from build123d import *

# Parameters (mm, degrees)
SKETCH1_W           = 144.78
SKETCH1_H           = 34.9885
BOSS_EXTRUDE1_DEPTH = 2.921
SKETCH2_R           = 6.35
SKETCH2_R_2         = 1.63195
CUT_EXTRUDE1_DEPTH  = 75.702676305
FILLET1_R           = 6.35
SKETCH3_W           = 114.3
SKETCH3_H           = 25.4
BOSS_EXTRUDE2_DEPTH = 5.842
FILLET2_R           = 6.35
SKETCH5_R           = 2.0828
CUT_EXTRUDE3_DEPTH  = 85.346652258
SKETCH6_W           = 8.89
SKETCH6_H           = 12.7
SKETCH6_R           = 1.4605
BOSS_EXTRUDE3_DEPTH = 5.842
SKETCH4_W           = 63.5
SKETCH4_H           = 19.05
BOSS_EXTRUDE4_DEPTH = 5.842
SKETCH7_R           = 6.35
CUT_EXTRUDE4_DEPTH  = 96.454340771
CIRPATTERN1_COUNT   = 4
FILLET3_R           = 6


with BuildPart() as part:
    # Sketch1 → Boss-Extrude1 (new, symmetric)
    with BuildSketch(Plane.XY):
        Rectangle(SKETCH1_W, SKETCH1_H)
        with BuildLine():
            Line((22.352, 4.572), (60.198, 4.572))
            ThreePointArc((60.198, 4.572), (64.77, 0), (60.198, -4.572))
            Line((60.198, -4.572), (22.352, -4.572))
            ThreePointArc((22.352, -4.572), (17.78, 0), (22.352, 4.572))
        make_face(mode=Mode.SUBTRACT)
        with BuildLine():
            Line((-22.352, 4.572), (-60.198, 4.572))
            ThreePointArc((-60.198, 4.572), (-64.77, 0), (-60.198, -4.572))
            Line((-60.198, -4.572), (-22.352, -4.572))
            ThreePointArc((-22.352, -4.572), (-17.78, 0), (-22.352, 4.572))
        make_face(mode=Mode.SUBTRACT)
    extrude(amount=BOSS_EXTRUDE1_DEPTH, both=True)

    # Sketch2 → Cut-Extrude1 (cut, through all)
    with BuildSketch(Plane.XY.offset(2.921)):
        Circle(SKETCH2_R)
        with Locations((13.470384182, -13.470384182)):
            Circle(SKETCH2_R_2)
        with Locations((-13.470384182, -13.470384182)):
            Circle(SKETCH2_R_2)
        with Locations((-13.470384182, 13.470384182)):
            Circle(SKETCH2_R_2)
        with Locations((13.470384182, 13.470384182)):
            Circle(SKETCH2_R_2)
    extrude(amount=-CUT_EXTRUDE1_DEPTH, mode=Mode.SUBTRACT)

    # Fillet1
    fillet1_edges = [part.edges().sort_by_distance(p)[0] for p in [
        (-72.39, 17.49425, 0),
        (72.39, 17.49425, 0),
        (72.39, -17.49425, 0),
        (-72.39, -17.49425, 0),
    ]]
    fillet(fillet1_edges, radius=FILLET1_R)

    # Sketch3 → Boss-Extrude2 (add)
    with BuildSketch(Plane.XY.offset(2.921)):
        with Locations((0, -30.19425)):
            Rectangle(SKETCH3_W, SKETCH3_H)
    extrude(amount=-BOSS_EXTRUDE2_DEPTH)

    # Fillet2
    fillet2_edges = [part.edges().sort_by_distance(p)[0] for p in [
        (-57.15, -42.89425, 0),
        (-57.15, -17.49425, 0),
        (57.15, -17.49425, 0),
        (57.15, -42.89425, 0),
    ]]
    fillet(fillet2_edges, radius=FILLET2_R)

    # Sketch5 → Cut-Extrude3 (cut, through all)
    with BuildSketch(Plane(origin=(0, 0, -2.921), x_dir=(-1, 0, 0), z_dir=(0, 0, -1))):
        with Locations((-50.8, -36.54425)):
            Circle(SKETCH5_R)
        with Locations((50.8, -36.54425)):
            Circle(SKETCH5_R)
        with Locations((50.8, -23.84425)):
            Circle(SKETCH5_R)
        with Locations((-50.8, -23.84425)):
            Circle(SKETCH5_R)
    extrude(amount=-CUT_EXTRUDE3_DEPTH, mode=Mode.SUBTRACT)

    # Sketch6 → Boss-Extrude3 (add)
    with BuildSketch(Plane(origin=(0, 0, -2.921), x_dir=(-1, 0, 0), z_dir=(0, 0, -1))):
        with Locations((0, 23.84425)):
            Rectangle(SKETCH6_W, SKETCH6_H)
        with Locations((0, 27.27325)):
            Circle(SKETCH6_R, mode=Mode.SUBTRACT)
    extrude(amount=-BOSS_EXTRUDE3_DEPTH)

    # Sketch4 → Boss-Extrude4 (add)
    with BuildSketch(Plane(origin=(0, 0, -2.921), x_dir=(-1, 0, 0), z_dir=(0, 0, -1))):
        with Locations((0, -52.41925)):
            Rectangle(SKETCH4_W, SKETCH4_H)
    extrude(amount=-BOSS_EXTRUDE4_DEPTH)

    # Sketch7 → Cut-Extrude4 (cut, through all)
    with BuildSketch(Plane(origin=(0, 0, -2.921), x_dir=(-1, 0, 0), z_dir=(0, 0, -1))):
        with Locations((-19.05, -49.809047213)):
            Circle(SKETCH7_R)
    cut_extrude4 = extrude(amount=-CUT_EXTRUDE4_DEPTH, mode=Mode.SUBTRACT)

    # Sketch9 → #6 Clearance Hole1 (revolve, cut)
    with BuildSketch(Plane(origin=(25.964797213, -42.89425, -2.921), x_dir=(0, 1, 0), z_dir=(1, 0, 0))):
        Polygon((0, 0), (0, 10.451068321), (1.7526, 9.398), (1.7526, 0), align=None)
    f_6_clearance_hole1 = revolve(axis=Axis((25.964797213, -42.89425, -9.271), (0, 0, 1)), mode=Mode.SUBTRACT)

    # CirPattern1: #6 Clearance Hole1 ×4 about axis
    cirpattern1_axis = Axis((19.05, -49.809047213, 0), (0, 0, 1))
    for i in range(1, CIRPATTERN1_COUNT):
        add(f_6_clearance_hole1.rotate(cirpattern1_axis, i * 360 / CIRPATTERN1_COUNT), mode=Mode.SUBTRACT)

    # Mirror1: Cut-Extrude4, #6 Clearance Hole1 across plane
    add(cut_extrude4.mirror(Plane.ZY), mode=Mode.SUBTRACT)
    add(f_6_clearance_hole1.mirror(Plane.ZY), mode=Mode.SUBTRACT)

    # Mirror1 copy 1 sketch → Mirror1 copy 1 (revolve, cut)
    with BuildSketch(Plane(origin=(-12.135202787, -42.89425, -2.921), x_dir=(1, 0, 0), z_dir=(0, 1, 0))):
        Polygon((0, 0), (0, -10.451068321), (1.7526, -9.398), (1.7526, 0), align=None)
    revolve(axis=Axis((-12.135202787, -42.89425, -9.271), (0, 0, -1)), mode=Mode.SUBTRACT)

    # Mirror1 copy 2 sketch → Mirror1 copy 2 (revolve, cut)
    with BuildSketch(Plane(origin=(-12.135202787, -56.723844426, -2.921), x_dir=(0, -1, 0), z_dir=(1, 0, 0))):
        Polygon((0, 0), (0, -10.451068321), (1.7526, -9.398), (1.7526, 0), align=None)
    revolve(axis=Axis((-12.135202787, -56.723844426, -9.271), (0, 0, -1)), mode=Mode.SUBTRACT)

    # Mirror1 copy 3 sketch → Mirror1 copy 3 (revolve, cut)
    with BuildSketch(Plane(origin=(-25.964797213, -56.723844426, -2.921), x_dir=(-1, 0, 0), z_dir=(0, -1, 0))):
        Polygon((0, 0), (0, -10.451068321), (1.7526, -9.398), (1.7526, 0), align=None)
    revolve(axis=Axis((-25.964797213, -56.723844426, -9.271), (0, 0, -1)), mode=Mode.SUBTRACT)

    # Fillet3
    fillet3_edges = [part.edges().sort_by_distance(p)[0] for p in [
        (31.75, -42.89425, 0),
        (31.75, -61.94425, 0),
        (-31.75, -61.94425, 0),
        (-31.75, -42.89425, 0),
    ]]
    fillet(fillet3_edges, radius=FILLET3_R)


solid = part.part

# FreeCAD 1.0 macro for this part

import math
import FreeCAD as App
import Part
import Sketcher
Q = App.Units.Quantity


def edges_at(feature, points):
    """Names of the edges that pass closest to the given points."""
    edges = feature.Shape.Edges
    near = lambda p: min(range(len(edges)), key=lambda i: edges[i].distToShape(Part.Vertex(*p))[0])
    return sorted({f"Edge{near(p) + 1}" for p in points})


def add_polygon(sketch, points):
    """Adds a closed chain of lines whose ends are joined by coincident constraints."""
    first, n = sketch.GeometryCount, len(points)
    for a, b in zip(points, points[1:] + points[:1]):
        sketch.addGeometry(Part.LineSegment(App.Vector(*a, 0), App.Vector(*b, 0)), False)
    for i in range(n):
        sketch.addConstraint(Sketcher.Constraint("Coincident", first + i, 2, first + (i + 1) % n, 1))

doc = App.newDocument("Part")
body = doc.addObject("PartDesign::Body", "Body")

sketch1 = doc.addObject("Sketcher::SketchObject", "Sketch")
body.addObject(sketch1)
sketch1.AttachmentSupport = (doc.XY_Plane, [""])
sketch1.MapMode = "FlatFace"
add_polygon(sketch1, [(-72.4, 17.5), (-72.4, -17.5), (72.4, -17.5), (72.4, 17.5)])
sketch1.addGeometry(Part.LineSegment(App.Vector(-60.2, 4.6, 0), App.Vector(-22.4, 4.6, 0)), False)
sketch1.addGeometry(Part.ArcOfCircle(Part.Circle(App.Vector(-22.4, 0, 0), App.Vector(0, 0, 1), 4.6), math.radians(-90), math.radians(90)), False)
sketch1.addGeometry(Part.LineSegment(App.Vector(-22.4, -4.6, 0), App.Vector(-60.2, -4.6, 0)), False)
sketch1.addGeometry(Part.ArcOfCircle(Part.Circle(App.Vector(-60.2, 0, 0), App.Vector(0, 0, 1), 4.6), math.radians(90), math.radians(270)), False)
sketch1.addGeometry(Part.ArcOfCircle(Part.Circle(App.Vector(22.4, 0, 0), App.Vector(0, 0, 1), 4.6), math.radians(90), math.radians(270)), False)
sketch1.addGeometry(Part.LineSegment(App.Vector(22.4, 4.6, 0), App.Vector(60.2, 4.6, 0)), False)
sketch1.addGeometry(Part.ArcOfCircle(Part.Circle(App.Vector(60.2, 0, 0), App.Vector(0, 0, 1), 4.6), math.radians(-90), math.radians(90)), False)
sketch1.addGeometry(Part.LineSegment(App.Vector(60.2, -4.6, 0), App.Vector(22.4, -4.6, 0)), False)
sketch1.addConstraint([
    Sketcher.Constraint("Tangent", 4, 2, 5, 2),
    Sketcher.Constraint("Tangent", 5, 1, 6, 1),
    Sketcher.Constraint("Tangent", 6, 2, 7, 2),
    Sketcher.Constraint("Tangent", 7, 1, 4, 1),
    Sketcher.Constraint("Tangent", 8, 1, 9, 1),
    Sketcher.Constraint("Tangent", 9, 2, 10, 2),
    Sketcher.Constraint("Tangent", 10, 1, 11, 1),
    Sketcher.Constraint("Tangent", 11, 2, 8, 2),
    Sketcher.Constraint("Vertical", 0),
    Sketcher.Constraint("Horizontal", 1),
    Sketcher.Constraint("Vertical", 2),
    Sketcher.Constraint("Horizontal", 3),
    Sketcher.Constraint("Horizontal", 4),
    Sketcher.Constraint("Horizontal", 6),
    Sketcher.Constraint("Horizontal", 9),
    Sketcher.Constraint("Horizontal", 11),
    Sketcher.Constraint("Equal", 7, 8),
    Sketcher.Constraint("Symmetric", 5, 3, 8, 3, -1, 1),
    Sketcher.Constraint("Symmetric", 0, 2, 2, 2, -1, 1),
    Sketcher.Constraint("Symmetric", 7, 3, 10, 3, -2),
    Sketcher.Constraint("Radius", 5, Q("0.18 in")),
    Sketcher.Constraint("DistanceX", 1, 1, 1, 2, Q("5.7 in")),
    Sketcher.Constraint("DistanceX", 4, 1, 4, 2, Q("1.49 in")),
    Sketcher.Constraint("DistanceX", 5, 3, -1, 1, Q("0.88 in")),
    Sketcher.Constraint("DistanceY", 0, 2, 0, 1, Q("1.3775 in")),
])
pad1 = doc.addObject("PartDesign::Pad", "Pad")
body.addObject(pad1)
pad1.Profile = sketch1
pad1.Length = Q("0.23 in")
pad1.Midplane = True

sketch2 = doc.addObject("Sketcher::SketchObject", "Sketch001")
body.addObject(sketch2)
sketch2.AttachmentSupport = (doc.XY_Plane, [""])
sketch2.MapMode = "FlatFace"
sketch2.AttachmentOffset = App.Placement(App.Vector(0, 0, 0.115 * 25.4), App.Rotation())
sketch2.addGeometry([
    Part.Circle(App.Vector(0, 0, 0), App.Vector(0, 0, 1), 6.3),
    Part.Circle(App.Vector(13.5, -13.5, 0), App.Vector(0, 0, 1), 1.6),
    Part.Circle(App.Vector(-13.5, -13.5, 0), App.Vector(0, 0, 1), 1.6),
    Part.Circle(App.Vector(-13.5, 13.5, 0), App.Vector(0, 0, 1), 1.6),
    Part.Circle(App.Vector(13.5, 13.5, 0), App.Vector(0, 0, 1), 1.6),
], False)
sketch2.addConstraint([
    Sketcher.Constraint("Coincident", 0, 3, -1, 1),
    Sketcher.Constraint("Equal", 1, 2),
    Sketcher.Constraint("Equal", 2, 3),
    Sketcher.Constraint("Equal", 3, 4),
    Sketcher.Constraint("Symmetric", 1, 3, 3, 3, -1, 1),
    Sketcher.Constraint("Symmetric", 2, 3, 4, 3, -1, 1),
    Sketcher.Constraint("Symmetric", 1, 3, 2, 3, -2),
    Sketcher.Constraint("Diameter", 0, Q("0.5 in")),
    Sketcher.Constraint("Diameter", 1, Q("0.1285 in")),
    Sketcher.Constraint("DistanceX", 2, 3, 1, 3, Q("26.940768 mm")),
    Sketcher.Constraint("DistanceY", 2, 3, 3, 3, Q("26.940768 mm")),
])
pocket1 = doc.addObject("PartDesign::Pocket", "Pocket")
body.addObject(pocket1)
pocket1.Profile = sketch2
pocket1.Type = "ThroughAll"
doc.recompute()

fillet = doc.addObject("PartDesign::Fillet", "Fillet")
body.addObject(fillet)
fillet.Base = (pocket1, edges_at(pocket1, [
    (-72.39, 17.494, 0),
    (72.39, 17.494, 0),
    (72.39, -17.494, 0),
    (-72.39, -17.494, 0),
]))
fillet.Radius = Q("0.25 in")

sketch3 = doc.addObject("Sketcher::SketchObject", "Sketch002")
body.addObject(sketch3)
sketch3.AttachmentSupport = (doc.XY_Plane, [""])
sketch3.MapMode = "FlatFace"
sketch3.AttachmentOffset = App.Placement(App.Vector(0, 0, 0.115 * 25.4), App.Rotation())
add_polygon(sketch3, [(-57, -17), (-57, -43), (57, -43), (57, -17)])
sketch3.addConstraint([
    Sketcher.Constraint("Vertical", 0),
    Sketcher.Constraint("Horizontal", 1),
    Sketcher.Constraint("Vertical", 2),
    Sketcher.Constraint("Horizontal", 3),
    Sketcher.Constraint("DistanceY", 0, 2, 0, 1, Q("1 in")),
    Sketcher.Constraint("DistanceX", 1, 1, 1, 2, Q("4.5 in")),
    Sketcher.Constraint("DistanceX", 0, 2, -1, 1, Q("2.25 in")),
    Sketcher.Constraint("DistanceY", 0, 2, -1, 1, Q("42.89425 mm")),
])
pad2 = doc.addObject("PartDesign::Pad", "Pad001")
body.addObject(pad2)
pad2.Profile = sketch3
pad2.Length = Q("0.23 in")
pad2.Reversed = True
doc.recompute()

fillet2 = doc.addObject("PartDesign::Fillet", "Fillet001")
body.addObject(fillet2)
fillet2.Base = (pad2, edges_at(pad2, [
    (-57.15, -42.894, 0),
    (-57.15, -17.494, 0),
    (57.15, -17.494, 0),
    (57.15, -42.894, 0),
]))
fillet2.Radius = Q("0.25 in")

sketch4 = doc.addObject("Sketcher::SketchObject", "Sketch003")
body.addObject(sketch4)
sketch4.AttachmentSupport = (doc.XY_Plane, [""])
sketch4.MapMode = "FlatFace"
sketch4.AttachmentOffset = App.Placement(App.Vector(0, 0, -0.115 * 25.4), App.Rotation())
sketch4.addGeometry([
    Part.Circle(App.Vector(50.8, -36.5, 0), App.Vector(0, 0, 1), 2.1),
    Part.Circle(App.Vector(-50.8, -36.5, 0), App.Vector(0, 0, 1), 2.1),
    Part.Circle(App.Vector(-50.8, -23.8, 0), App.Vector(0, 0, 1), 2.1),
    Part.Circle(App.Vector(50.8, -23.8, 0), App.Vector(0, 0, 1), 2.1),
], False)
sketch4.addConstraint([
    Sketcher.Constraint("Equal", 0, 1),
    Sketcher.Constraint("Equal", 1, 2),
    Sketcher.Constraint("Equal", 2, 3),
    Sketcher.Constraint("Symmetric", 0, 3, 1, 3, -2),
    Sketcher.Constraint("Symmetric", 2, 3, 3, 3, -2),
    Sketcher.Constraint("Vertical", 1, 3, 2, 3),
    Sketcher.Constraint("Diameter", 0, Q("0.164 in")),
    Sketcher.Constraint("DistanceX", -1, 1, 0, 3, Q("2 in")),
    Sketcher.Constraint("DistanceY", 1, 3, 2, 3, Q("0.5 in")),
    Sketcher.Constraint("DistanceY", 0, 3, -1, 1, Q("36.54425 mm")),
])
pocket2 = doc.addObject("PartDesign::Pocket", "Pocket001")
body.addObject(pocket2)
pocket2.Profile = sketch4
pocket2.Type = "ThroughAll"
pocket2.Reversed = True

sketch5 = doc.addObject("Sketcher::SketchObject", "Sketch004")
body.addObject(sketch5)
sketch5.AttachmentSupport = (doc.XY_Plane, [""])
sketch5.MapMode = "FlatFace"
sketch5.AttachmentOffset = App.Placement(App.Vector(0, 0, -0.115 * 25.4), App.Rotation())
add_polygon(sketch5, [(4.4, 30.2), (4.4, 17.5), (-4.4, 17.5), (-4.4, 30.2)])
sketch5.addGeometry(Part.Circle(App.Vector(0, 27.3, 0), App.Vector(0, 0, 1), 1.5), False)
sketch5.addConstraint([
    Sketcher.Constraint("Vertical", 0),
    Sketcher.Constraint("Horizontal", 1),
    Sketcher.Constraint("Vertical", 2),
    Sketcher.Constraint("Horizontal", 3),
    Sketcher.Constraint("PointOnObject", 4, 3, -2),
    Sketcher.Constraint("Diameter", 4, Q("0.115 in")),
    Sketcher.Constraint("DistanceY", 0, 2, 0, 1, Q("0.5 in")),
    Sketcher.Constraint("DistanceX", 1, 2, 1, 1, Q("0.35 in")),
    Sketcher.Constraint("DistanceX", -1, 1, 0, 2, Q("0.175 in")),
    Sketcher.Constraint("DistanceY", 0, 2, 4, 3, Q("0.385 in")),
    Sketcher.Constraint("DistanceY", -1, 1, 4, 3, Q("27.27325 mm")),
])
pad3 = doc.addObject("PartDesign::Pad", "Pad002")
body.addObject(pad3)
pad3.Profile = sketch5
pad3.Length = Q("0.23 in")

sketch6 = doc.addObject("Sketcher::SketchObject", "Sketch005")
body.addObject(sketch6)
sketch6.AttachmentSupport = (doc.XY_Plane, [""])
sketch6.MapMode = "FlatFace"
sketch6.AttachmentOffset = App.Placement(App.Vector(0, 0, -0.115 * 25.4), App.Rotation())
add_polygon(sketch6, [(32, -43), (32, -62), (-32, -62), (-32, -43)])
sketch6.addConstraint([
    Sketcher.Constraint("Vertical", 0),
    Sketcher.Constraint("Horizontal", 1),
    Sketcher.Constraint("Vertical", 2),
    Sketcher.Constraint("Horizontal", 3),
    Sketcher.Constraint("DistanceX", 1, 2, 1, 1, Q("2.5 in")),
    Sketcher.Constraint("DistanceY", 0, 2, 0, 1, Q("0.75 in")),
    Sketcher.Constraint("DistanceX", -1, 1, 0, 2, Q("1.25 in")),
    Sketcher.Constraint("DistanceY", 0, 2, -1, 1, Q("61.94425 mm")),
])
pad4 = doc.addObject("PartDesign::Pad", "Pad003")
body.addObject(pad4)
pad4.Profile = sketch6
pad4.Length = Q("0.23 in")

sketch7 = doc.addObject("Sketcher::SketchObject", "Sketch006")
body.addObject(sketch7)
sketch7.AttachmentSupport = (doc.XY_Plane, [""])
sketch7.MapMode = "FlatFace"
sketch7.AttachmentOffset = App.Placement(App.Vector(0, 0, -0.115 * 25.4), App.Rotation())
sketch7.addGeometry(Part.Circle(App.Vector(19, -50, 0), App.Vector(0, 0, 1), 6), False)
sketch7.addConstraint([
    Sketcher.Constraint("Diameter", 0, Q("0.5 in")),
    Sketcher.Constraint("DistanceX", -1, 1, 0, 3, Q("0.75 in")),
    Sketcher.Constraint("DistanceY", 0, 3, -1, 1, Q("49.809047 mm")),
])
pocket3 = doc.addObject("PartDesign::Pocket", "Pocket002")
body.addObject(pocket3)
pocket3.Profile = sketch7
pocket3.Type = "ThroughAll"
pocket3.Reversed = True

sketch8 = doc.addObject("Sketcher::SketchObject", "Sketch007")
body.addObject(sketch8)
sketch8.AttachmentSupport = (doc.YZ_Plane, [""])
sketch8.MapMode = "FlatFace"
sketch8.AttachmentOffset = App.Placement(App.Vector(0, 0, 25.964797), App.Rotation())
add_polygon(sketch8, [(-42.9, 7.5), (-42.9, -2.9), (-41.1, -2.9), (-41.1, 6.5)])
sketch8.addGeometry(Part.LineSegment(App.Vector(-42.9, -2.9, 0), App.Vector(-42.9, 7.5, 0)), True)
sketch8.addConstraint([
    Sketcher.Constraint("Vertical", 0),
    Sketcher.Constraint("Horizontal", 1),
    Sketcher.Constraint("Vertical", 2),
    Sketcher.Constraint("Vertical", 4),
    Sketcher.Constraint("Coincident", 4, 1, 0, 2),
    Sketcher.Constraint("Equal", 0, 4),
    Sketcher.Constraint("Angle", 3, Q("149 deg")),
    Sketcher.Constraint("DistanceY", 2, 1, 2, 2, Q("0.37 in")),
    Sketcher.Constraint("DistanceX", 1, 1, 1, 2, Q("0.069 in")),
    Sketcher.Constraint("DistanceY", 0, 2, -1, 1, Q("0.115 in")),
    Sketcher.Constraint("DistanceX", 0, 2, -1, 1, Q("42.89425 mm")),
])
groove = doc.addObject("PartDesign::Groove", "Groove")
body.addObject(groove)
groove.Profile = sketch8
groove.ReferenceAxis = (sketch8, ["Axis0"])
groove.Angle = 360
doc.recompute()

datumline = doc.addObject("PartDesign::Line", "DatumLine")
body.addObject(datumline)
datumline.Placement = App.Placement(App.Vector(19.05, -49.809047, 0), App.Rotation(App.Vector(0, 0, 1), App.Vector(0, 0, 1)))
polarpattern = doc.addObject("PartDesign::PolarPattern", "PolarPattern")
body.addObject(polarpattern)
polarpattern.Originals = [groove]
polarpattern.Axis = (datumline, [""])
polarpattern.Angle = 360
polarpattern.Occurrences = 4
body.Tip = polarpattern
doc.recompute()

mirrored = doc.addObject("PartDesign::Mirrored", "Mirrored")
body.addObject(mirrored)
mirrored.Originals = [pocket3, groove]
mirrored.MirrorPlane = (doc.YZ_Plane, [""])
body.Tip = mirrored

sketch9 = doc.addObject("Sketcher::SketchObject", "Sketch008")
body.addObject(sketch9)
sketch9.AttachmentSupport = (doc.XZ_Plane, [""])
sketch9.MapMode = "FlatFace"
sketch9.AttachmentOffset = App.Placement(App.Vector(0, 0, 42.89425), App.Rotation())
add_polygon(sketch9, [(-12.1, -2.9), (-12.1, 7.5), (-10.4, 6.5), (-10.4, -2.9)])
sketch9.addGeometry(Part.LineSegment(App.Vector(-12.1, 7.5, 0), App.Vector(-12.1, -2.9, 0)), True)
sketch9.addConstraint([
    Sketcher.Constraint("Vertical", 0),
    Sketcher.Constraint("Vertical", 2),
    Sketcher.Constraint("Horizontal", 3),
    Sketcher.Constraint("Vertical", 4),
    Sketcher.Constraint("Coincident", 4, 1, 0, 2),
    Sketcher.Constraint("Horizontal", 2, 2, 4, 2),
    Sketcher.Constraint("Angle", 1, Q("-31 deg")),
    Sketcher.Constraint("DistanceY", 2, 2, 2, 1, Q("0.37 in")),
    Sketcher.Constraint("DistanceX", 3, 2, 3, 1, Q("0.069 in")),
    Sketcher.Constraint("DistanceY", -1, 1, 1, 2, Q("0.255 in")),
    Sketcher.Constraint("DistanceX", 0, 2, -1, 1, Q("12.135203 mm")),
])
groove2 = doc.addObject("PartDesign::Groove", "Groove001")
body.addObject(groove2)
groove2.Profile = sketch9
groove2.ReferenceAxis = (sketch9, ["Axis0"])
groove2.Angle = 360

sketch10 = doc.addObject("Sketcher::SketchObject", "Sketch009")
body.addObject(sketch10)
sketch10.AttachmentSupport = (doc.YZ_Plane, [""])
sketch10.MapMode = "FlatFace"
sketch10.AttachmentOffset = App.Placement(App.Vector(0, 0, -12.135203), App.Rotation())
add_polygon(sketch10, [(-56.7, -2.9), (-56.7, 7.5), (-58.5, 6.5), (-58.5, -2.9)])
sketch10.addGeometry(Part.LineSegment(App.Vector(-56.7, 7.5, 0), App.Vector(-56.7, -2.9, 0)), True)
sketch10.addConstraint([
    Sketcher.Constraint("Vertical", 0),
    Sketcher.Constraint("Vertical", 2),
    Sketcher.Constraint("Horizontal", 3),
    Sketcher.Constraint("Vertical", 4),
    Sketcher.Constraint("Coincident", 4, 1, 0, 2),
    Sketcher.Constraint("Horizontal", 2, 2, 4, 2),
    Sketcher.Constraint("Angle", 1, Q("-149 deg")),
    Sketcher.Constraint("DistanceY", 2, 2, 2, 1, Q("0.37 in")),
    Sketcher.Constraint("DistanceX", 3, 1, 3, 2, Q("0.069 in")),
    Sketcher.Constraint("DistanceY", -1, 1, 1, 2, Q("0.255 in")),
    Sketcher.Constraint("DistanceX", 0, 2, -1, 1, Q("56.723844 mm")),
])
groove3 = doc.addObject("PartDesign::Groove", "Groove002")
body.addObject(groove3)
groove3.Profile = sketch10
groove3.ReferenceAxis = (sketch10, ["Axis0"])
groove3.Angle = 360

sketch11 = doc.addObject("Sketcher::SketchObject", "Sketch010")
body.addObject(sketch11)
sketch11.AttachmentSupport = (doc.XZ_Plane, [""])
sketch11.MapMode = "FlatFace"
sketch11.AttachmentOffset = App.Placement(App.Vector(0, 0, 56.723844), App.Rotation())
add_polygon(sketch11, [(-26, -2.9), (-26, 7.5), (-27.7, 6.5), (-27.7, -2.9)])
sketch11.addGeometry(Part.LineSegment(App.Vector(-26, 7.5, 0), App.Vector(-26, -2.9, 0)), True)
sketch11.addConstraint([
    Sketcher.Constraint("Vertical", 0),
    Sketcher.Constraint("Vertical", 2),
    Sketcher.Constraint("Horizontal", 3),
    Sketcher.Constraint("Vertical", 4),
    Sketcher.Constraint("Coincident", 4, 1, 0, 2),
    Sketcher.Constraint("Horizontal", 2, 2, 4, 2),
    Sketcher.Constraint("Angle", 1, Q("-149 deg")),
    Sketcher.Constraint("DistanceY", 2, 2, 2, 1, Q("0.37 in")),
    Sketcher.Constraint("DistanceX", 3, 1, 3, 2, Q("0.069 in")),
    Sketcher.Constraint("DistanceY", -1, 1, 1, 2, Q("0.255 in")),
    Sketcher.Constraint("DistanceX", 0, 2, -1, 1, Q("25.964797 mm")),
])
groove4 = doc.addObject("PartDesign::Groove", "Groove003")
body.addObject(groove4)
groove4.Profile = sketch11
groove4.ReferenceAxis = (sketch11, ["Axis0"])
groove4.Angle = 360
doc.recompute()

fillet3 = doc.addObject("PartDesign::Fillet", "Fillet002")
body.addObject(fillet3)
fillet3.Base = (groove4, edges_at(groove4, [
    (31.75, -42.894, 0),
    (31.75, -61.944, 0),
    (-31.75, -61.944, 0),
    (-31.75, -42.894, 0),
]))
fillet3.Radius = 6

doc.recompute()
